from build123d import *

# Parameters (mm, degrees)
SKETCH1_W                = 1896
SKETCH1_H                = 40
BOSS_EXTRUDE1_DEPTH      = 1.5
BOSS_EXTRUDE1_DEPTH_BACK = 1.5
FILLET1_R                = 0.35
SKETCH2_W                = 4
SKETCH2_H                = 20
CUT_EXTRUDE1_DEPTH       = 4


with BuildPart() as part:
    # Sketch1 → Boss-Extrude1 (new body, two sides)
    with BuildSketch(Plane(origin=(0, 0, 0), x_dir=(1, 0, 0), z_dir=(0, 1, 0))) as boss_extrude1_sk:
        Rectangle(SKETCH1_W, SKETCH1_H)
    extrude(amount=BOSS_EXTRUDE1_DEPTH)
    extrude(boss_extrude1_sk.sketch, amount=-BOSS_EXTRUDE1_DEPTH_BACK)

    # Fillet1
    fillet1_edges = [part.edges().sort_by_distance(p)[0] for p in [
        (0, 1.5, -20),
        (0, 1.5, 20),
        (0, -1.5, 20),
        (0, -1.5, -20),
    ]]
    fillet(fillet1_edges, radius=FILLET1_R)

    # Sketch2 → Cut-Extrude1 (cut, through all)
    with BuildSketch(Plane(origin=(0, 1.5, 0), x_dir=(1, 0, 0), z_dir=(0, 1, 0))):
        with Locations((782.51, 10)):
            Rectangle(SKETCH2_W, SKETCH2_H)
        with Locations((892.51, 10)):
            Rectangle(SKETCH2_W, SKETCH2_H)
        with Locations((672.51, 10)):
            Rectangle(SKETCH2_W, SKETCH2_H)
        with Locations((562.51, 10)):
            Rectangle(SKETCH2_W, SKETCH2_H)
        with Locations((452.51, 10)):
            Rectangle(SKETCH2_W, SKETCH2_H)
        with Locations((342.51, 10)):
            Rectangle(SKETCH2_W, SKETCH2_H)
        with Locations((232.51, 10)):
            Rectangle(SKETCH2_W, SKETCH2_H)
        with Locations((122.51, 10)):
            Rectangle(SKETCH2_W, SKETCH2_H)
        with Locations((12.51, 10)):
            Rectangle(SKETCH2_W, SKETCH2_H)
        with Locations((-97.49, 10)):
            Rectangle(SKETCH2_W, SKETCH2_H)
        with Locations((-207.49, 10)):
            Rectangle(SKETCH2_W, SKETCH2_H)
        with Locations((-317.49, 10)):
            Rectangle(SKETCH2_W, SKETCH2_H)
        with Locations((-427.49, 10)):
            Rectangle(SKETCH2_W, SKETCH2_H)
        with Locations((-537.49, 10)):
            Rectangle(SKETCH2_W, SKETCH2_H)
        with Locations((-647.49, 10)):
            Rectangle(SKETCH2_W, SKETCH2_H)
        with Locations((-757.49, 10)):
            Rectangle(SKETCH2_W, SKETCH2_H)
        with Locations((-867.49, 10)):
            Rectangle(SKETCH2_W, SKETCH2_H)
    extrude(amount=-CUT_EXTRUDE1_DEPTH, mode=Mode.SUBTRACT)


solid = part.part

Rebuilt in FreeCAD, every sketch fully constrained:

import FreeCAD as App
import Part
import Sketcher


def edges_at(feature, points):
    """Names of the edges that pass closest to the given points."""
    edges = feature.Shape.Edges
    near = lambda p: min(range(len(edges)), key=lambda i: edges[i].distToShape(Part.Vertex(*p))[0])
    return sorted({f"Edge{near(p) + 1}" for p in points})

doc = App.newDocument("Part")
body = doc.addObject("PartDesign::Body", "Body")

# Sketch on XZ plane
sketch1 = doc.addObject("Sketcher::SketchObject", "Sketch")
body.addObject(sketch1)
sketch1.AttachmentSupport = (doc.XZ_Plane, [""])
sketch1.MapMode = "FlatFace"
sketch1.addGeometry([
    Part.LineSegment(App.Vector(-948, -20, 0), App.Vector(-948, 20, 0)),
    Part.LineSegment(App.Vector(-948, 20, 0), App.Vector(948, 20, 0)),
    Part.LineSegment(App.Vector(948, 20, 0), App.Vector(948, -20, 0)),
    Part.LineSegment(App.Vector(948, -20, 0), App.Vector(-948, -20, 0)),
], False)
sketch1.addConstraint([
    Sketcher.Constraint("Coincident", 0, 2, 1, 1),
    Sketcher.Constraint("Coincident", 1, 2, 2, 1),
    Sketcher.Constraint("Coincident", 2, 2, 3, 1),
    Sketcher.Constraint("Coincident", 3, 2, 0, 1),
    Sketcher.Constraint("Vertical", 0),
    Sketcher.Constraint("Horizontal", 1),
    Sketcher.Constraint("Vertical", 2),
    Sketcher.Constraint("Horizontal", 3),
    Sketcher.Constraint("Symmetric", 0, 2, 2, 2, -1, 1),
    Sketcher.Constraint("DistanceX", 1, 1, 1, 2, 1896.0),
    Sketcher.Constraint("DistanceY", 0, 1, 0, 2, 40.0),
])
pad1 = doc.addObject("PartDesign::Pad", "Pad")
body.addObject(pad1)
pad1.Profile = sketch1
pad1.Type = "TwoLengths"
pad1.Length = 1.5
pad1.Length2 = 1.5
pad1.Reversed = True
doc.recompute()

fillet = doc.addObject("PartDesign::Fillet", "Fillet")
body.addObject(fillet)
fillet.Base = (pad1, edges_at(pad1, [
    (0, 1.5, -20),
    (0, 1.5, 20),
    (0, -1.5, 20),
    (0, -1.5, -20),
]))
fillet.Radius = 0.35

# Sketch on XZ plane
sketch2 = doc.addObject("Sketcher::SketchObject", "Sketch001")
body.addObject(sketch2)
sketch2.AttachmentSupport = (doc.XZ_Plane, [""])
sketch2.MapMode = "FlatFace"
sketch2.AttachmentOffset = App.Placement(App.Vector(0, 0, -1.5), App.Rotation())
sketch2.addGeometry([
    Part.LineSegment(App.Vector(780.5, -20, 0), App.Vector(780.5, 0, 0)),  # 0
    Part.LineSegment(App.Vector(780.5, 0, 0), App.Vector(784.5, 0, 0)),  # 1
    Part.LineSegment(App.Vector(784.5, 0, 0), App.Vector(784.5, -20, 0)),  # 2
    Part.LineSegment(App.Vector(784.5, -20, 0), App.Vector(780.5, -20, 0)),  # 3
    Part.LineSegment(App.Vector(890.5, -20, 0), App.Vector(890.5, 0, 0)),  # 4
    Part.LineSegment(App.Vector(890.5, 0, 0), App.Vector(894.5, 0, 0)),  # 5
    Part.LineSegment(App.Vector(894.5, 0, 0), App.Vector(894.5, -20, 0)),  # 6
    Part.LineSegment(App.Vector(894.5, -20, 0), App.Vector(890.5, -20, 0)),  # 7
    Part.LineSegment(App.Vector(670.5, -20, 0), App.Vector(670.5, 0, 0)),  # 8
    Part.LineSegment(App.Vector(670.5, 0, 0), App.Vector(674.5, 0, 0)),  # 9
    Part.LineSegment(App.Vector(674.5, 0, 0), App.Vector(674.5, -20, 0)),  # 10
    Part.LineSegment(App.Vector(674.5, -20, 0), App.Vector(670.5, -20, 0)),  # 11
    Part.LineSegment(App.Vector(560.5, -20, 0), App.Vector(560.5, 0, 0)),  # 12
    Part.LineSegment(App.Vector(560.5, 0, 0), App.Vector(564.5, 0, 0)),  # 13
    Part.LineSegment(App.Vector(564.5, 0, 0), App.Vector(564.5, -20, 0)),  # 14
    Part.LineSegment(App.Vector(564.5, -20, 0), App.Vector(560.5, -20, 0)),  # 15
    Part.LineSegment(App.Vector(450.5, -20, 0), App.Vector(450.5, 0, 0)),  # 16
    Part.LineSegment(App.Vector(450.5, 0, 0), App.Vector(454.5, 0, 0)),  # 17
    Part.LineSegment(App.Vector(454.5, 0, 0), App.Vector(454.5, -20, 0)),  # 18
    Part.LineSegment(App.Vector(454.5, -20, 0), App.Vector(450.5, -20, 0)),  # 19
    Part.LineSegment(App.Vector(340.5, -20, 0), App.Vector(340.5, 0, 0)),  # 20
    Part.LineSegment(App.Vector(340.5, 0, 0), App.Vector(344.5, 0, 0)),  # 21
    Part.LineSegment(App.Vector(344.5, 0, 0), App.Vector(344.5, -20, 0)),  # 22
    Part.LineSegment(App.Vector(344.5, -20, 0), App.Vector(340.5, -20, 0)),  # 23
    Part.LineSegment(App.Vector(230.5, -20, 0), App.Vector(230.5, 0, 0)),  # 24
    Part.LineSegment(App.Vector(230.5, 0, 0), App.Vector(234.5, 0, 0)),  # 25
    Part.LineSegment(App.Vector(234.5, 0, 0), App.Vector(234.5, -20, 0)),  # 26
    Part.LineSegment(App.Vector(234.5, -20, 0), App.Vector(230.5, -20, 0)),  # 27
    Part.LineSegment(App.Vector(120.5, -20, 0), App.Vector(120.5, 0, 0)),  # 28
    Part.LineSegment(App.Vector(120.5, 0, 0), App.Vector(124.5, 0, 0)),  # 29
    Part.LineSegment(App.Vector(124.5, 0, 0), App.Vector(124.5, -20, 0)),  # 30
    Part.LineSegment(App.Vector(124.5, -20, 0), App.Vector(120.5, -20, 0)),  # 31
    Part.LineSegment(App.Vector(10.5, -20, 0), App.Vector(10.5, 0, 0)),  # 32
    Part.LineSegment(App.Vector(10.5, 0, 0), App.Vector(14.5, 0, 0)),  # 33
    Part.LineSegment(App.Vector(14.5, 0, 0), App.Vector(14.5, -20, 0)),  # 34
    Part.LineSegment(App.Vector(14.5, -20, 0), App.Vector(10.5, -20, 0)),  # 35
    Part.LineSegment(App.Vector(-99.5, -20, 0), App.Vector(-99.5, 0, 0)),  # 36
    Part.LineSegment(App.Vector(-99.5, 0, 0), App.Vector(-95.5, 0, 0)),  # 37
    Part.LineSegment(App.Vector(-95.5, 0, 0), App.Vector(-95.5, -20, 0)),  # 38
    Part.LineSegment(App.Vector(-95.5, -20, 0), App.Vector(-99.5, -20, 0)),  # 39
    Part.LineSegment(App.Vector(-209.5, -20, 0), App.Vector(-209.5, 0, 0)),  # 40
    Part.LineSegment(App.Vector(-209.5, 0, 0), App.Vector(-205.5, 0, 0)),  # 41
    Part.LineSegment(App.Vector(-205.5, 0, 0), App.Vector(-205.5, -20, 0)),  # 42
    Part.LineSegment(App.Vector(-205.5, -20, 0), App.Vector(-209.5, -20, 0)),  # 43
    Part.LineSegment(App.Vector(-319.5, -20, 0), App.Vector(-319.5, 0, 0)),  # 44
    Part.LineSegment(App.Vector(-319.5, 0, 0), App.Vector(-315.5, 0, 0)),  # 45
    Part.LineSegment(App.Vector(-315.5, 0, 0), App.Vector(-315.5, -20, 0)),  # 46
    Part.LineSegment(App.Vector(-315.5, -20, 0), App.Vector(-319.5, -20, 0)),  # 47
    Part.LineSegment(App.Vector(-429.5, -20, 0), App.Vector(-429.5, 0, 0)),  # 48
    Part.LineSegment(App.Vector(-429.5, 0, 0), App.Vector(-425.5, 0, 0)),  # 49
    Part.LineSegment(App.Vector(-425.5, 0, 0), App.Vector(-425.5, -20, 0)),  # 50
    Part.LineSegment(App.Vector(-425.5, -20, 0), App.Vector(-429.5, -20, 0)),  # 51
    Part.LineSegment(App.Vector(-539.5, -20, 0), App.Vector(-539.5, 0, 0)),  # 52
    Part.LineSegment(App.Vector(-539.5, 0, 0), App.Vector(-535.5, 0, 0)),  # 53
    Part.LineSegment(App.Vector(-535.5, 0, 0), App.Vector(-535.5, -20, 0)),  # 54
    Part.LineSegment(App.Vector(-535.5, -20, 0), App.Vector(-539.5, -20, 0)),  # 55
    Part.LineSegment(App.Vector(-649.5, -20, 0), App.Vector(-649.5, 0, 0)),  # 56
    Part.LineSegment(App.Vector(-649.5, 0, 0), App.Vector(-645.5, 0, 0)),  # 57
    Part.LineSegment(App.Vector(-645.5, 0, 0), App.Vector(-645.5, -20, 0)),  # 58
    Part.LineSegment(App.Vector(-645.5, -20, 0), App.Vector(-649.5, -20, 0)),  # 59
    Part.LineSegment(App.Vector(-759.5, -20, 0), App.Vector(-759.5, 0, 0)),  # 60
    Part.LineSegment(App.Vector(-759.5, 0, 0), App.Vector(-755.5, 0, 0)),  # 61
    Part.LineSegment(App.Vector(-755.5, 0, 0), App.Vector(-755.5, -20, 0)),  # 62
    Part.LineSegment(App.Vector(-755.5, -20, 0), App.Vector(-759.5, -20, 0)),  # 63
    Part.LineSegment(App.Vector(-869.5, -20, 0), App.Vector(-869.5, 0, 0)),  # 64
    Part.LineSegment(App.Vector(-869.5, 0, 0), App.Vector(-865.5, 0, 0)),  # 65
    Part.LineSegment(App.Vector(-865.5, 0, 0), App.Vector(-865.5, -20, 0)),  # 66
    Part.LineSegment(App.Vector(-865.5, -20, 0), App.Vector(-869.5, -20, 0)),  # 67
], False)
sketch2.addConstraint([
    Sketcher.Constraint("Coincident", 0, 2, 1, 1),
    Sketcher.Constraint("Coincident", 1, 2, 2, 1),
    Sketcher.Constraint("Coincident", 2, 2, 3, 1),
    Sketcher.Constraint("Coincident", 3, 2, 0, 1),
    Sketcher.Constraint("Coincident", 4, 2, 5, 1),
    Sketcher.Constraint("Coincident", 5, 2, 6, 1),
    Sketcher.Constraint("Coincident", 6, 2, 7, 1),
    Sketcher.Constraint("Coincident", 7, 2, 4, 1),
    Sketcher.Constraint("Coincident", 8, 2, 9, 1),
    Sketcher.Constraint("Coincident", 9, 2, 10, 1),
    Sketcher.Constraint("Coincident", 10, 2, 11, 1),
    Sketcher.Constraint("Coincident", 11, 2, 8, 1),
    Sketcher.Constraint("Coincident", 12, 2, 13, 1),
    Sketcher.Constraint("Coincident", 13, 2, 14, 1),
    Sketcher.Constraint("Coincident", 14, 2, 15, 1),
    Sketcher.Constraint("Coincident", 15, 2, 12, 1),
    Sketcher.Constraint("Coincident", 16, 2, 17, 1),
    Sketcher.Constraint("Coincident", 17, 2, 18, 1),
    Sketcher.Constraint("Coincident", 18, 2, 19, 1),
    Sketcher.Constraint("Coincident", 19, 2, 16, 1),
    Sketcher.Constraint("Coincident", 20, 2, 21, 1),
    Sketcher.Constraint("Coincident", 21, 2, 22, 1),
    Sketcher.Constraint("Coincident", 22, 2, 23, 1),
    Sketcher.Constraint("Coincident", 23, 2, 20, 1),
    Sketcher.Constraint("Coincident", 24, 2, 25, 1),
    Sketcher.Constraint("Coincident", 25, 2, 26, 1),
    Sketcher.Constraint("Coincident", 26, 2, 27, 1),
    Sketcher.Constraint("Coincident", 27, 2, 24, 1),
    Sketcher.Constraint("Coincident", 28, 2, 29, 1),
    Sketcher.Constraint("Coincident", 29, 2, 30, 1),
    Sketcher.Constraint("Coincident", 30, 2, 31, 1),
    Sketcher.Constraint("Coincident", 31, 2, 28, 1),
    Sketcher.Constraint("Coincident", 32, 2, 33, 1),
    Sketcher.Constraint("Coincident", 33, 2, 34, 1),
    Sketcher.Constraint("Coincident", 34, 2, 35, 1),
    Sketcher.Constraint("Coincident", 35, 2, 32, 1),
    Sketcher.Constraint("Coincident", 36, 2, 37, 1),
    Sketcher.Constraint("Coincident", 37, 2, 38, 1),
    Sketcher.Constraint("Coincident", 38, 2, 39, 1),
    Sketcher.Constraint("Coincident", 39, 2, 36, 1),
    Sketcher.Constraint("Coincident", 40, 2, 41, 1),
    Sketcher.Constraint("Coincident", 41, 2, 42, 1),
    Sketcher.Constraint("Coincident", 42, 2, 43, 1),
    Sketcher.Constraint("Coincident", 43, 2, 40, 1),
    Sketcher.Constraint("Coincident", 44, 2, 45, 1),
    Sketcher.Constraint("Coincident", 45, 2, 46, 1),
    Sketcher.Constraint("Coincident", 46, 2, 47, 1),
    Sketcher.Constraint("Coincident", 47, 2, 44, 1),
    Sketcher.Constraint("Coincident", 48, 2, 49, 1),
    Sketcher.Constraint("Coincident", 49, 2, 50, 1),
    Sketcher.Constraint("Coincident", 50, 2, 51, 1),
    Sketcher.Constraint("Coincident", 51, 2, 48, 1),
    Sketcher.Constraint("Coincident", 52, 2, 53, 1),
    Sketcher.Constraint("Coincident", 53, 2, 54, 1),
    Sketcher.Constraint("Coincident", 54, 2, 55, 1),
    Sketcher.Constraint("Coincident", 55, 2, 52, 1),
    Sketcher.Constraint("Coincident", 56, 2, 57, 1),
    Sketcher.Constraint("Coincident", 57, 2, 58, 1),
    Sketcher.Constraint("Coincident", 58, 2, 59, 1),
    Sketcher.Constraint("Coincident", 59, 2, 56, 1),
    Sketcher.Constraint("Coincident", 60, 2, 61, 1),
    Sketcher.Constraint("Coincident", 61, 2, 62, 1),
    Sketcher.Constraint("Coincident", 62, 2, 63, 1),
    Sketcher.Constraint("Coincident", 63, 2, 60, 1),
    Sketcher.Constraint("Coincident", 64, 2, 65, 1),
    Sketcher.Constraint("Coincident", 65, 2, 66, 1),
    Sketcher.Constraint("Coincident", 66, 2, 67, 1),
    Sketcher.Constraint("Coincident", 67, 2, 64, 1),
    Sketcher.Constraint("Vertical", 0),
    Sketcher.Constraint("Horizontal", 1),
    Sketcher.Constraint("Vertical", 2),
    Sketcher.Constraint("Horizontal", 3),
    Sketcher.Constraint("Vertical", 4),
    Sketcher.Constraint("Horizontal", 5),
    Sketcher.Constraint("Vertical", 6),
    Sketcher.Constraint("Horizontal", 7),
    Sketcher.Constraint("Vertical", 8),
    Sketcher.Constraint("Horizontal", 9),
    Sketcher.Constraint("Vertical", 10),
    Sketcher.Constraint("Horizontal", 11),
    Sketcher.Constraint("Vertical", 12),
    Sketcher.Constraint("Horizontal", 13),
    Sketcher.Constraint("Vertical", 14),
    Sketcher.Constraint("Horizontal", 15),
    Sketcher.Constraint("Vertical", 16),
    Sketcher.Constraint("Horizontal", 17),
    Sketcher.Constraint("Vertical", 18),
    Sketcher.Constraint("Horizontal", 19),
    Sketcher.Constraint("Vertical", 20),
    Sketcher.Constraint("Horizontal", 21),
    Sketcher.Constraint("Vertical", 22),
    Sketcher.Constraint("Horizontal", 23),
    Sketcher.Constraint("Vertical", 24),
    Sketcher.Constraint("Horizontal", 25),
    Sketcher.Constraint("Vertical", 26),
    Sketcher.Constraint("Horizontal", 27),
    Sketcher.Constraint("Vertical", 28),
    Sketcher.Constraint("Horizontal", 29),
    Sketcher.Constraint("Vertical", 30),
    Sketcher.Constraint("Horizontal", 31),
    Sketcher.Constraint("Vertical", 32),
    Sketcher.Constraint("Horizontal", 33),
    Sketcher.Constraint("Vertical", 34),
    Sketcher.Constraint("Horizontal", 35),
    Sketcher.Constraint("Vertical", 36),
    Sketcher.Constraint("Horizontal", 37),
    Sketcher.Constraint("Vertical", 38),
    Sketcher.Constraint("Horizontal", 39),
    Sketcher.Constraint("Vertical", 40),
    Sketcher.Constraint("Horizontal", 41),
    Sketcher.Constraint("Vertical", 42),
    Sketcher.Constraint("Horizontal", 43),
    Sketcher.Constraint("Vertical", 44),
    Sketcher.Constraint("Horizontal", 45),
    Sketcher.Constraint("Vertical", 46),
    Sketcher.Constraint("Horizontal", 47),
    Sketcher.Constraint("Vertical", 48),
    Sketcher.Constraint("Horizontal", 49),
    Sketcher.Constraint("Vertical", 50),
    Sketcher.Constraint("Horizontal", 51),
    Sketcher.Constraint("Vertical", 52),
    Sketcher.Constraint("Horizontal", 53),
    Sketcher.Constraint("Vertical", 54),
    Sketcher.Constraint("Horizontal", 55),
    Sketcher.Constraint("Vertical", 56),
    Sketcher.Constraint("Horizontal", 57),
    Sketcher.Constraint("Vertical", 58),
    Sketcher.Constraint("Horizontal", 59),
    Sketcher.Constraint("Vertical", 60),
    Sketcher.Constraint("Horizontal", 61),
    Sketcher.Constraint("Vertical", 62),
    Sketcher.Constraint("Horizontal", 63),
    Sketcher.Constraint("Vertical", 64),
    Sketcher.Constraint("Horizontal", 65),
    Sketcher.Constraint("Vertical", 66),
    Sketcher.Constraint("Horizontal", 67),
    Sketcher.Constraint("PointOnObject", 0, 2, -1),
    Sketcher.Constraint("PointOnObject", 4, 2, -1),
    Sketcher.Constraint("PointOnObject", 8, 2, -1),
    Sketcher.Constraint("PointOnObject", 12, 2, -1),
    Sketcher.Constraint("PointOnObject", 16, 2, -1),
    Sketcher.Constraint("PointOnObject", 20, 2, -1),
    Sketcher.Constraint("PointOnObject", 24, 2, -1),
    Sketcher.Constraint("PointOnObject", 28, 2, -1),
    Sketcher.Constraint("PointOnObject", 32, 2, -1),
    Sketcher.Constraint("PointOnObject", 36, 2, -1),
    Sketcher.Constraint("PointOnObject", 40, 2, -1),
    Sketcher.Constraint("PointOnObject", 44, 2, -1),
    Sketcher.Constraint("PointOnObject", 48, 2, -1),
    Sketcher.Constraint("PointOnObject", 52, 2, -1),
    Sketcher.Constraint("PointOnObject", 56, 2, -1),
    Sketcher.Constraint("PointOnObject", 60, 2, -1),
    Sketcher.Constraint("PointOnObject", 64, 2, -1),
    Sketcher.Constraint("Horizontal", 3, 2, 6, 2),
    Sketcher.Constraint("Horizontal", 7, 2, 10, 2),
    Sketcher.Constraint("Horizontal", 11, 2, 14, 2),
    Sketcher.Constraint("Horizontal", 15, 2, 18, 2),
    Sketcher.Constraint("Horizontal", 19, 2, 22, 2),
    Sketcher.Constraint("Horizontal", 23, 2, 26, 2),
    Sketcher.Constraint("Horizontal", 27, 2, 30, 2),
    Sketcher.Constraint("Horizontal", 31, 2, 34, 2),
    Sketcher.Constraint("Horizontal", 35, 2, 38, 2),
    Sketcher.Constraint("Horizontal", 39, 2, 42, 2),
    Sketcher.Constraint("Horizontal", 43, 2, 46, 2),
    Sketcher.Constraint("Horizontal", 47, 2, 50, 2),
    Sketcher.Constraint("Horizontal", 51, 2, 54, 2),
    Sketcher.Constraint("Horizontal", 55, 2, 58, 2),
    Sketcher.Constraint("Horizontal", 59, 2, 62, 2),
    Sketcher.Constraint("Horizontal", 63, 2, 66, 2),
    Sketcher.Constraint("Equal", 3, 5),
    Sketcher.Constraint("Equal", 7, 9),
    Sketcher.Constraint("Equal", 11, 13),
    Sketcher.Constraint("Equal", 15, 17),
    Sketcher.Constraint("Equal", 19, 21),
    Sketcher.Constraint("Equal", 23, 25),
    Sketcher.Constraint("Equal", 27, 29),
    Sketcher.Constraint("Equal", 31, 33),
    Sketcher.Constraint("Equal", 35, 37),
    Sketcher.Constraint("Equal", 39, 41),
    Sketcher.Constraint("Equal", 43, 45),
    Sketcher.Constraint("Equal", 47, 49),
    Sketcher.Constraint("Equal", 51, 53),
    Sketcher.Constraint("Equal", 55, 57),
    Sketcher.Constraint("Equal", 59, 61),
    Sketcher.Constraint("Equal", 63, 65),
    Sketcher.Constraint("DistanceX", 1, 1, 1, 2, 4.0),
    Sketcher.Constraint("DistanceY", 0, 1, 0, 2, 20.0),
    Sketcher.Constraint("DistanceX", -1, 1, 0, 2, 780.51),
    Sketcher.Constraint("DistanceX", -1, 1, 4, 2, 890.51),
    Sketcher.Constraint("DistanceX", -1, 1, 8, 2, 670.51),
    Sketcher.Constraint("DistanceX", -1, 1, 12, 2, 560.51),
    Sketcher.Constraint("DistanceX", -1, 1, 16, 2, 450.51),
    Sketcher.Constraint("DistanceX", -1, 1, 20, 2, 340.51),
    Sketcher.Constraint("DistanceX", -1, 1, 24, 2, 230.51),
    Sketcher.Constraint("DistanceX", -1, 1, 28, 2, 120.51),
    Sketcher.Constraint("DistanceX", -1, 1, 32, 2, 10.51),
    Sketcher.Constraint("DistanceX", 36, 2, -1, 1, 99.49),
    Sketcher.Constraint("DistanceX", 40, 2, -1, 1, 209.49),
    Sketcher.Constraint("DistanceX", 44, 2, -1, 1, 319.49),
    Sketcher.Constraint("DistanceX", 48, 2, -1, 1, 429.49),
    Sketcher.Constraint("DistanceX", 52, 2, -1, 1, 539.49),
    Sketcher.Constraint("DistanceX", 56, 2, -1, 1, 649.49),
    Sketcher.Constraint("DistanceX", 60, 2, -1, 1, 759.49),
    Sketcher.Constraint("DistanceX", 64, 2, -1, 1, 869.49),
])
pocket1 = doc.addObject("PartDesign::Pocket", "Pocket")
body.addObject(pocket1)
pocket1.Profile = sketch2
pocket1.Type = "ThroughAll"
pocket1.Reversed = True

doc.recompute()
